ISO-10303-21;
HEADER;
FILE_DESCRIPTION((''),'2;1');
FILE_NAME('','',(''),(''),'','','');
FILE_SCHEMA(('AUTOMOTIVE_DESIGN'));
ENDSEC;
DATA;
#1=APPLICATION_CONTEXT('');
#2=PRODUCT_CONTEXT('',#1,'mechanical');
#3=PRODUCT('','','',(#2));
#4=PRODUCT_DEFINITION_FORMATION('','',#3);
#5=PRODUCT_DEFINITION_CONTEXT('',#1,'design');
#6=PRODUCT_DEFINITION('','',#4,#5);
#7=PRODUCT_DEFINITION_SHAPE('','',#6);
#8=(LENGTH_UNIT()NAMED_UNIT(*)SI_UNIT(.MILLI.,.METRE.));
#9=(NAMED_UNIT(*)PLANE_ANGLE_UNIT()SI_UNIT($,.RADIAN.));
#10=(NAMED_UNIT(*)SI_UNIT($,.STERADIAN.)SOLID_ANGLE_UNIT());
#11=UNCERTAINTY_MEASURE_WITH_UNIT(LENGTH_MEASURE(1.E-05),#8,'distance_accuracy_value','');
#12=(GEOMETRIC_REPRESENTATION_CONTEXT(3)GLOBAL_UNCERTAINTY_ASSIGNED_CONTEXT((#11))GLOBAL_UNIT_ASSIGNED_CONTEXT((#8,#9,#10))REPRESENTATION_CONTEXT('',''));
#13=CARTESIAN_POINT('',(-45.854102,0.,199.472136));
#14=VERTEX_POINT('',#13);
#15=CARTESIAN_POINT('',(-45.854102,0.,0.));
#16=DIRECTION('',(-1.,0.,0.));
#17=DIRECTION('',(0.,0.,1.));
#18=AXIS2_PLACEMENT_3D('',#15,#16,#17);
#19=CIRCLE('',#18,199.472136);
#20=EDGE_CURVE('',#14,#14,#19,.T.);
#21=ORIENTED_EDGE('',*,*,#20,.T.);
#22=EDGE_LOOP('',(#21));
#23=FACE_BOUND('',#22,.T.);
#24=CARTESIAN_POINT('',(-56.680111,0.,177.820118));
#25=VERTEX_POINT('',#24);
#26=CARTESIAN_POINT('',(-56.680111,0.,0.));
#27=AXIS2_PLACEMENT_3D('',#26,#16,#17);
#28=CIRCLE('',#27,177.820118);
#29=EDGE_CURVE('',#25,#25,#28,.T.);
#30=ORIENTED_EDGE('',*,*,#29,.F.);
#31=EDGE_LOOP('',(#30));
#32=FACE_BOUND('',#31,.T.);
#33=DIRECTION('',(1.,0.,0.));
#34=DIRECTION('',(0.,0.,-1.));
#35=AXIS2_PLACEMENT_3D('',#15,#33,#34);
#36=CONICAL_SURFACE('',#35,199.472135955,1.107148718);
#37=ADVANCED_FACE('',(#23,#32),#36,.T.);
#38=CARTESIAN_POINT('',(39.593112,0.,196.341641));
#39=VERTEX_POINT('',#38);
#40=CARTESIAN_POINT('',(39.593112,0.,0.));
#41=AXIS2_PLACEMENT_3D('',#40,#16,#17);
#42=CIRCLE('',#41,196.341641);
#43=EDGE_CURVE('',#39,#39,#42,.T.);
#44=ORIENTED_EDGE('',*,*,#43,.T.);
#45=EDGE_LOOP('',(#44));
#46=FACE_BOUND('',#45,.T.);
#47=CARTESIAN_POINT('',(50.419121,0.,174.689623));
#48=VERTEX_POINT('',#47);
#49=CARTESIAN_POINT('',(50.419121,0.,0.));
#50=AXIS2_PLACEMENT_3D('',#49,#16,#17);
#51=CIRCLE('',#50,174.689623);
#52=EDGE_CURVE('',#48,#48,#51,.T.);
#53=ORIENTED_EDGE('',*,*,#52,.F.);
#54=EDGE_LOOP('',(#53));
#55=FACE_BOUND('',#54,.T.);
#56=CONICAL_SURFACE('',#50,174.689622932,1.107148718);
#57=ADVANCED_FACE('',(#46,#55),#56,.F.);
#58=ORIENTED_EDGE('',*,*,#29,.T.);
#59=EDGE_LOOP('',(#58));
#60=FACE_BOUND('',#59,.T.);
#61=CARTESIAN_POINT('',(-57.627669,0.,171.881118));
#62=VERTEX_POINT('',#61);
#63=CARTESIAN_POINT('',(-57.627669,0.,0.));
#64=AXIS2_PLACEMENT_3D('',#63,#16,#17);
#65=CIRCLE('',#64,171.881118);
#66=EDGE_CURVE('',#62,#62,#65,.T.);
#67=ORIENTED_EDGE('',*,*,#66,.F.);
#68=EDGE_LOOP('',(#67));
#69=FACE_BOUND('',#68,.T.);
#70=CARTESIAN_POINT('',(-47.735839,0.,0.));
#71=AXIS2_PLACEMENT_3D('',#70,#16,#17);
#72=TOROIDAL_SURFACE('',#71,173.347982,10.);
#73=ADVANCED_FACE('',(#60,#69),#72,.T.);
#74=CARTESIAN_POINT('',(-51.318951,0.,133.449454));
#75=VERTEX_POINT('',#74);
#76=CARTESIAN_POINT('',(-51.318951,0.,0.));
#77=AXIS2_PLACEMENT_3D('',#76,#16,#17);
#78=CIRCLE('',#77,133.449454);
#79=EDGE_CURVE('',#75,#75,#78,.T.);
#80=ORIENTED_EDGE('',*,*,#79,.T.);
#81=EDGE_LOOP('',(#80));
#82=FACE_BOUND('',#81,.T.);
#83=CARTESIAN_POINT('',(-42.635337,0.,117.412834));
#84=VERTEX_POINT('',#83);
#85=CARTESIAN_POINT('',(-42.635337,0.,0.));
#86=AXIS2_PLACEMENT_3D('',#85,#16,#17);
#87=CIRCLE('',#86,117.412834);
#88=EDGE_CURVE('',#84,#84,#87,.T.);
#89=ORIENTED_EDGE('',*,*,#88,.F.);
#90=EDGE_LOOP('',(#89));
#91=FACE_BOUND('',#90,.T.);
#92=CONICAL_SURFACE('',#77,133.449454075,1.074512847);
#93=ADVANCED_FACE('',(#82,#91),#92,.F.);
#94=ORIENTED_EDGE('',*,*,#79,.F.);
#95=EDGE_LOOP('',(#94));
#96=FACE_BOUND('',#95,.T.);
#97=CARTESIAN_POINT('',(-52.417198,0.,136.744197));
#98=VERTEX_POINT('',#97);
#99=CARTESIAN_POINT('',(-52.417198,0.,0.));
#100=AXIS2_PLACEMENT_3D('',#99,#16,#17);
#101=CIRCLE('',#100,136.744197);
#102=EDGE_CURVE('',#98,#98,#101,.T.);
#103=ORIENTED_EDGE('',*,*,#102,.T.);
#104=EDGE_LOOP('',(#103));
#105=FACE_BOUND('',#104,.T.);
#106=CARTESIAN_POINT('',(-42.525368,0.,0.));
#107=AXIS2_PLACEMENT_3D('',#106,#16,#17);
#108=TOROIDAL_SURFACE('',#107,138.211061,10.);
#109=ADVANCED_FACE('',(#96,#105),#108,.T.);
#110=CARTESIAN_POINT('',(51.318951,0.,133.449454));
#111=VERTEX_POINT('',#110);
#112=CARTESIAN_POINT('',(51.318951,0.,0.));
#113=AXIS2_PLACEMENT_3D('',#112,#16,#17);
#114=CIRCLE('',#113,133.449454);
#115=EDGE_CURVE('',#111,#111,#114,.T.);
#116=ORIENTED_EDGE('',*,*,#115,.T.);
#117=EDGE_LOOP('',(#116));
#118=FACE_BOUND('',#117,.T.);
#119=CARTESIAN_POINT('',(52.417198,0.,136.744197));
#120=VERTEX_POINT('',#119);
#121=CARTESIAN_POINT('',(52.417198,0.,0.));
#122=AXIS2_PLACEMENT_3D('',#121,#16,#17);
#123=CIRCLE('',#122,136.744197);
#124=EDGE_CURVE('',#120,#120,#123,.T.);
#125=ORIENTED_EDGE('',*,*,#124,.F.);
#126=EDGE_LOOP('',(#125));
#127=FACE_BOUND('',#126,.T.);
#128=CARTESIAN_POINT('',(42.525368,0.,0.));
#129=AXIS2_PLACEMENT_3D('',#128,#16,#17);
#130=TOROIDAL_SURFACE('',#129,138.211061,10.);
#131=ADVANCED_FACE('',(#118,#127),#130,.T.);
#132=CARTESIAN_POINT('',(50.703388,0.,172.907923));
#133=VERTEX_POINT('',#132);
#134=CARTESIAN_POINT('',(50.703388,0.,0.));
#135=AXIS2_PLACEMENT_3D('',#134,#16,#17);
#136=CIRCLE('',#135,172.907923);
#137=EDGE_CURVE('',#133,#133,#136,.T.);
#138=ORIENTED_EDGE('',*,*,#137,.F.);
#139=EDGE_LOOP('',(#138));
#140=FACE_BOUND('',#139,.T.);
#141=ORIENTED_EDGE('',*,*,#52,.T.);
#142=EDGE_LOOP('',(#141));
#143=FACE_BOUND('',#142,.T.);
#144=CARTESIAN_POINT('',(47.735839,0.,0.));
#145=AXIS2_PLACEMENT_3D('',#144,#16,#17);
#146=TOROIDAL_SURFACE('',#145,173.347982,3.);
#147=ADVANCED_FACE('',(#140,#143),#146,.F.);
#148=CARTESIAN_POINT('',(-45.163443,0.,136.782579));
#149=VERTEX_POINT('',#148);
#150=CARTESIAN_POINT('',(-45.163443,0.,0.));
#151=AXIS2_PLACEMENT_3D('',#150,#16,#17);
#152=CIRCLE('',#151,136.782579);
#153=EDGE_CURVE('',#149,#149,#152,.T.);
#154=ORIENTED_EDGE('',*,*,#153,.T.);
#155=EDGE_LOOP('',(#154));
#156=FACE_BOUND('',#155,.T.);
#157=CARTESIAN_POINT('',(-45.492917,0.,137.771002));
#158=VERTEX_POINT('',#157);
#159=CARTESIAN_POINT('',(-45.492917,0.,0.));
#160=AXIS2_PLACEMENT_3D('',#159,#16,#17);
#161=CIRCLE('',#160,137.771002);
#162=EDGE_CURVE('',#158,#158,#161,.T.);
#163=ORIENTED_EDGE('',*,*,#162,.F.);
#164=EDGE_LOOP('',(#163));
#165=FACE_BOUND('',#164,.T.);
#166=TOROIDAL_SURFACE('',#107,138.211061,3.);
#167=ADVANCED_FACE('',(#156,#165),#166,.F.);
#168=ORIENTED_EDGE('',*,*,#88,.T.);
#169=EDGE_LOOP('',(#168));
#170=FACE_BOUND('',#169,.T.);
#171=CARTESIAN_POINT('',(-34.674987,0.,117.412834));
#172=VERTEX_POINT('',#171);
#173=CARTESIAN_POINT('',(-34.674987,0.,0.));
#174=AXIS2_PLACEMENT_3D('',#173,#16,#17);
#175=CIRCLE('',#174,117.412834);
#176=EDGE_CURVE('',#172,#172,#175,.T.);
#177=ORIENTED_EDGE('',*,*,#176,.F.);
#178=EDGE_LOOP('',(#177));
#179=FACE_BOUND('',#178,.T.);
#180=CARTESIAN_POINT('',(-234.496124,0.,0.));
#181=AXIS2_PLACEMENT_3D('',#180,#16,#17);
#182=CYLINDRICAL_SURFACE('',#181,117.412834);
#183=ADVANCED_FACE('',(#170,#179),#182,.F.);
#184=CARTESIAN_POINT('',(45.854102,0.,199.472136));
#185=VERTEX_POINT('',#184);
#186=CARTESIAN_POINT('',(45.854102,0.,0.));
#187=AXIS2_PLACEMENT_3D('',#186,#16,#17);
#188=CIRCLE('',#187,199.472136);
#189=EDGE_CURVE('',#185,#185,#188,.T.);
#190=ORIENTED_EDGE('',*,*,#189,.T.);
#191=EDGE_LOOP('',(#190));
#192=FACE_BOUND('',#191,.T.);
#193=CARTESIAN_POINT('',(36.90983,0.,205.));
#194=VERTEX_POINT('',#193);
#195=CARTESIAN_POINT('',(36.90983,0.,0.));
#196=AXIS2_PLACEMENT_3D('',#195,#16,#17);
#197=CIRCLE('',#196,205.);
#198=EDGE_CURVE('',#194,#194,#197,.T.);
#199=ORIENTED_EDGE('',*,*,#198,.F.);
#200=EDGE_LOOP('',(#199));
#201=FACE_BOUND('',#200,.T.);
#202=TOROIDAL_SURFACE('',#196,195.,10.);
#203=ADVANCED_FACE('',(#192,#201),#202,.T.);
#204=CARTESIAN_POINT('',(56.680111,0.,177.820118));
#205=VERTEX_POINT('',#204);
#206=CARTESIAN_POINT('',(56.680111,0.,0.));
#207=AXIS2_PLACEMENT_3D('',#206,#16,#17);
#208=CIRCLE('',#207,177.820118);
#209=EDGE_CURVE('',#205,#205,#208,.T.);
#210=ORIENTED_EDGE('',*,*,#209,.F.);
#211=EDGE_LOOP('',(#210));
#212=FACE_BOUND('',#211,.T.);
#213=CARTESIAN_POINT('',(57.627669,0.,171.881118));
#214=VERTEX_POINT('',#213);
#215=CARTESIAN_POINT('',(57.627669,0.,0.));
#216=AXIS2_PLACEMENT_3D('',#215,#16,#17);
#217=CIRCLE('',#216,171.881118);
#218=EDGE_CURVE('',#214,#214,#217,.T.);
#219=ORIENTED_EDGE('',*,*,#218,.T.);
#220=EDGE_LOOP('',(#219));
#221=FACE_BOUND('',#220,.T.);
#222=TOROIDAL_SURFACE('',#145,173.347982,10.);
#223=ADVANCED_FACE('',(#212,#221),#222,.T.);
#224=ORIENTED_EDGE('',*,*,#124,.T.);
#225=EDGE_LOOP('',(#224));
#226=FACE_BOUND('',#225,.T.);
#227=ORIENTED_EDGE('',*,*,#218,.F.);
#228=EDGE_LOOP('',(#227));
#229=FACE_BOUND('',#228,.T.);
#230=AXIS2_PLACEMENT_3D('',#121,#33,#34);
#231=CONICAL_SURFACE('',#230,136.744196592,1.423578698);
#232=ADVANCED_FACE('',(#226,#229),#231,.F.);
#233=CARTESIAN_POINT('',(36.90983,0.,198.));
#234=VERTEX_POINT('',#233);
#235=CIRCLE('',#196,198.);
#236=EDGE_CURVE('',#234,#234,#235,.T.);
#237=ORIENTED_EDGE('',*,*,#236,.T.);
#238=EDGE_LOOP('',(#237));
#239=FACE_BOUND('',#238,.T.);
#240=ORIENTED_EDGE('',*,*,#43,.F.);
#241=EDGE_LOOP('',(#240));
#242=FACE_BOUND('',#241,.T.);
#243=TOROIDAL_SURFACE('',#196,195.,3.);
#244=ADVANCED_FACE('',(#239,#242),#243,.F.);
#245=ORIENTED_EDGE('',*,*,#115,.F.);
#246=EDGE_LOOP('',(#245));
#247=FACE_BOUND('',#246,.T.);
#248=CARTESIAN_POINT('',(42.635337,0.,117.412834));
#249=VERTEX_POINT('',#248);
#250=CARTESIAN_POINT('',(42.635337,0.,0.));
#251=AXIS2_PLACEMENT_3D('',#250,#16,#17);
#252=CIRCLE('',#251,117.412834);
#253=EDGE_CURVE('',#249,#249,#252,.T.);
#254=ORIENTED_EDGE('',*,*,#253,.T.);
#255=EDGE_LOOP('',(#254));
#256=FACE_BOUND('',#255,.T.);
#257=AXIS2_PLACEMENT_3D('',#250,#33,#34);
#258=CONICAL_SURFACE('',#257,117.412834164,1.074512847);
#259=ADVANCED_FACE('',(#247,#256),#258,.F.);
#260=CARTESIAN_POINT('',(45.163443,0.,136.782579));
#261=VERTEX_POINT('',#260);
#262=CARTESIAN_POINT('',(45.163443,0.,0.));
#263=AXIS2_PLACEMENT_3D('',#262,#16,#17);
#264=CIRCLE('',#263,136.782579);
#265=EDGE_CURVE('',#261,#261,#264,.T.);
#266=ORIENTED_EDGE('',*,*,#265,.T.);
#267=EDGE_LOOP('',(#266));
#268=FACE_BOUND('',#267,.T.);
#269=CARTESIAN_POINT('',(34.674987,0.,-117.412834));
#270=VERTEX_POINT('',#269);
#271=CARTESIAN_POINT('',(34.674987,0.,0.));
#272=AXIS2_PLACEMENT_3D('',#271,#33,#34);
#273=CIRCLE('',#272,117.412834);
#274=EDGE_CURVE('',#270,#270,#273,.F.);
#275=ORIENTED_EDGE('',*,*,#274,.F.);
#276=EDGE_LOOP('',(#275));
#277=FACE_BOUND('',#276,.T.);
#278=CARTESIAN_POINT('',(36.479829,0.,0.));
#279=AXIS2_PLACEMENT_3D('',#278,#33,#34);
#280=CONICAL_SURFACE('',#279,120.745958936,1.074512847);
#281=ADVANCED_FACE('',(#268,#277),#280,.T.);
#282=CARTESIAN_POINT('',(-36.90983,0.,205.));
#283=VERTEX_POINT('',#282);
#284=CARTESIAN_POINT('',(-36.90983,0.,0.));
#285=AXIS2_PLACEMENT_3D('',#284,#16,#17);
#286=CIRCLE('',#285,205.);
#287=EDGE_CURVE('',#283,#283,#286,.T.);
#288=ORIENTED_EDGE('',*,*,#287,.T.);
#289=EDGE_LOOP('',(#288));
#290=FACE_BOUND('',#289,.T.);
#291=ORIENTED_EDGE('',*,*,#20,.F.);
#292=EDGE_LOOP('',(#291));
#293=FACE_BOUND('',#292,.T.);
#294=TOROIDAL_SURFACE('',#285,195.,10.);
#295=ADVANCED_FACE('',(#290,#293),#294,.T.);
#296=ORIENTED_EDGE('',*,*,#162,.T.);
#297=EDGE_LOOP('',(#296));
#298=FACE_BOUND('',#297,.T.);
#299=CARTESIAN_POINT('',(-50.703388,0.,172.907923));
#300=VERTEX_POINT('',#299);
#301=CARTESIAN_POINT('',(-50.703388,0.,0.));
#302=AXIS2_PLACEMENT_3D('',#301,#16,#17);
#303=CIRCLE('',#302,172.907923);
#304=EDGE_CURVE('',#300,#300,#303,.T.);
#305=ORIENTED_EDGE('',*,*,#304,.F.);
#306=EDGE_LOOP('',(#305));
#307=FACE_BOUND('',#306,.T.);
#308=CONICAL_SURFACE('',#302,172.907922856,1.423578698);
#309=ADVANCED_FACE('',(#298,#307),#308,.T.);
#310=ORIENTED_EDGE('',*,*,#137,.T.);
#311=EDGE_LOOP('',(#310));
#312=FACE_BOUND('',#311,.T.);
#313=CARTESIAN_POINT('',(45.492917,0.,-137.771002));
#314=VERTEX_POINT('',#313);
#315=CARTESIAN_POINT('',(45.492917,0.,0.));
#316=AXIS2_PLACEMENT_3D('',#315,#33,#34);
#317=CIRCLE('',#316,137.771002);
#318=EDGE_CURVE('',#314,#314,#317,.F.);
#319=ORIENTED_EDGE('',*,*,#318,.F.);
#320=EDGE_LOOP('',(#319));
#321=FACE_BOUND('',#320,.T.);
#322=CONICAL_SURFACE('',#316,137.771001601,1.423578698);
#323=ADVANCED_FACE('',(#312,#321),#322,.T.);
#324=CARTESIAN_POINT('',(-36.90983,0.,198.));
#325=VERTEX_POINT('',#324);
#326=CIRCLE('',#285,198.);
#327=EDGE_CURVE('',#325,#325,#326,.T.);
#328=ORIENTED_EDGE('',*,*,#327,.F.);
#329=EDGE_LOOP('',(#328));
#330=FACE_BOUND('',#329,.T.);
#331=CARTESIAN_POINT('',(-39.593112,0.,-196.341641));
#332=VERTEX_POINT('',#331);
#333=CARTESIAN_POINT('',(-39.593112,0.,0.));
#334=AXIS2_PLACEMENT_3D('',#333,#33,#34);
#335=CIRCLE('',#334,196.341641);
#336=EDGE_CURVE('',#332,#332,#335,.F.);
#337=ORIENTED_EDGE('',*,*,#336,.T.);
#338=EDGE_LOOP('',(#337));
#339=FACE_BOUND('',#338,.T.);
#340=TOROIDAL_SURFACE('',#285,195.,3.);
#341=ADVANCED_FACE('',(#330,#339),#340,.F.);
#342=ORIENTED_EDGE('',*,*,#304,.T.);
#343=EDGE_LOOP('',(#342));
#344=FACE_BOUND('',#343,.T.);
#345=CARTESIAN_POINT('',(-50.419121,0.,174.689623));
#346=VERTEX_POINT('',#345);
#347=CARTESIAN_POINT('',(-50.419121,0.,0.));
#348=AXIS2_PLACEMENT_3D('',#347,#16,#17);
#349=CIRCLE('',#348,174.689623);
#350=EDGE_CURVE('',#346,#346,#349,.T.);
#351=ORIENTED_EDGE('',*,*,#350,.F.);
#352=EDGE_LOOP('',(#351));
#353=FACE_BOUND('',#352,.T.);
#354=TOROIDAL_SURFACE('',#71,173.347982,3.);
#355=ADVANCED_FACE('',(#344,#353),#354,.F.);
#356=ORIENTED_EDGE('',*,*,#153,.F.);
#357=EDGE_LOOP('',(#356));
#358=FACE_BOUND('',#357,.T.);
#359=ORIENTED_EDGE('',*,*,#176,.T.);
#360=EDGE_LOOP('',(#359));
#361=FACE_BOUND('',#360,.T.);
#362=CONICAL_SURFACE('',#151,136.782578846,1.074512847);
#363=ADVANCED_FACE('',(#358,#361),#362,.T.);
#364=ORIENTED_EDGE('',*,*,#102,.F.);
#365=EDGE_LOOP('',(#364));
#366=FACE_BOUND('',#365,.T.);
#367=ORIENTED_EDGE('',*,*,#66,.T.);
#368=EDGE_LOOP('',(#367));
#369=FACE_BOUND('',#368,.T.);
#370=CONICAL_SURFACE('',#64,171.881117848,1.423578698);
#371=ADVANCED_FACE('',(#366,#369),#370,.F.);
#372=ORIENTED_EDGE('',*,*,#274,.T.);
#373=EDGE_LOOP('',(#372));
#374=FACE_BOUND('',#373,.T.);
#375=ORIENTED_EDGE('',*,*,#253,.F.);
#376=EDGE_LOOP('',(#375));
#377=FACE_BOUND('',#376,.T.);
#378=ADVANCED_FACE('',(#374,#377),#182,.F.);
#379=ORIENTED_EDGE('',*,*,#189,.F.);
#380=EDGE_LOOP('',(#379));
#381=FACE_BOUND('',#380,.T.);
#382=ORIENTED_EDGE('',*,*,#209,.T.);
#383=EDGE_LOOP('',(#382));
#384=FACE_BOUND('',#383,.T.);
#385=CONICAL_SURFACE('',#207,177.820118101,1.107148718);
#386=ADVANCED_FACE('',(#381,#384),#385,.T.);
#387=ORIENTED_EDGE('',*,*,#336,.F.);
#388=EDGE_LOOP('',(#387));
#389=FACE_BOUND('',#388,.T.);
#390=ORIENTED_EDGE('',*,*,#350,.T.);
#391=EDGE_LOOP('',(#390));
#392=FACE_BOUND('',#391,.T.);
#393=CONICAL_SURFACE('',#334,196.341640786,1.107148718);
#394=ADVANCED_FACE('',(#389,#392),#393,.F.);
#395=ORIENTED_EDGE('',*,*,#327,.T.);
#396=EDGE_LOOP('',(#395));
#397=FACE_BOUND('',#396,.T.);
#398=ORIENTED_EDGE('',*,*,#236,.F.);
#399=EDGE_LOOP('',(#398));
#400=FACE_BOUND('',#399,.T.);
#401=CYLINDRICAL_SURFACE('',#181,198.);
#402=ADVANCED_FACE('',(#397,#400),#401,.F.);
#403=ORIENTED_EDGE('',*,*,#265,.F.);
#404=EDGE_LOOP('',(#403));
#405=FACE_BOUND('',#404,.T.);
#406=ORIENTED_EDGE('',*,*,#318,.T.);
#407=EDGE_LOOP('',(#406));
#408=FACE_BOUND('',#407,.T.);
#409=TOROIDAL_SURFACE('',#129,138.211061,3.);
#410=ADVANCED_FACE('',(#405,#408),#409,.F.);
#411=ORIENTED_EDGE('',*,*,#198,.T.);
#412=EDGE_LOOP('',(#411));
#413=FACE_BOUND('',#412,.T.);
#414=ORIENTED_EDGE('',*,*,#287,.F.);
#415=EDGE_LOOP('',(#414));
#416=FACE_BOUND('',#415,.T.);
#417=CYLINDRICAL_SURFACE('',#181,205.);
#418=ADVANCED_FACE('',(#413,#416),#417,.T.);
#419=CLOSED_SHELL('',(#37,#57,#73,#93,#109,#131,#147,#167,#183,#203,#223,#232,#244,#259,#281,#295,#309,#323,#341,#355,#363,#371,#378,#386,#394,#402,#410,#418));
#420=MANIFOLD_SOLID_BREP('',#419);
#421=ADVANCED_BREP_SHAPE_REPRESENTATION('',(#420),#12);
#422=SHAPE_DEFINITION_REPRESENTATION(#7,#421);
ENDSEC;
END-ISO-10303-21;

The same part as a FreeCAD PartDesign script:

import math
import FreeCAD as App
import Part
import Sketcher

V = App.Vector


def faces_at(feature, points):
    """Names of the faces that lie closest to the given points."""
    faces = feature.Shape.Faces
    near = lambda p: min(range(len(faces)), key=lambda i: faces[i].distToShape(Part.Vertex(*p))[0])
    return sorted({f"Face{near(p) + 1}" for p in points})

doc = App.newDocument("Part")
body = doc.addObject("PartDesign::Body", "Body")

# Sketch on XZ plane
sketch1 = body.newObject("Sketcher::SketchObject", "Sketch")
sketch1.AttachmentSupport = (doc.getObject("XZ_Plane"), [""])
sketch1.MapMode = "FlatFace"
sketch1.addGeometry(Part.LineSegment(V(36.9, -205, 0), V(-36.9, -205, 0)), False)
sketch1.addGeometry(Part.ArcOfCircle(Part.Circle(V(-36.9, -195, 0), V(0, 0, 1), 10), math.radians(-153), math.radians(-90)), False)
sketch1.addGeometry(Part.LineSegment(V(-45.9, -199.5, 0), V(-56.7, -177.8, 0)), False)
sketch1.addGeometry(Part.ArcOfCircle(Part.Circle(V(-47.7, -173.3, 0), V(0, 0, 1), 10), math.radians(172), math.radians(207)), False)
sketch1.addGeometry(Part.LineSegment(V(-57.6, -171.9, 0), V(-52.4, -136.7, 0)), False)
sketch1.addGeometry(Part.ArcOfCircle(Part.Circle(V(-42.5, -138.2, 0), V(0, 0, 1), 10), math.radians(152), math.radians(172)), False)
sketch1.addGeometry(Part.LineSegment(V(-51.3, -133.4, 0), V(-42.6, -117.4, 0)), False)
sketch1.addGeometry(Part.LineSegment(V(-42.6, -117.4, 0), V(42.6, -117.4, 0)), False)
sketch1.addGeometry(Part.LineSegment(V(42.6, -117.4, 0), V(51.3, -133.4, 0)), False)
sketch1.addGeometry(Part.ArcOfCircle(Part.Circle(V(42.5, -138.2, 0), V(0, 0, 1), 10), math.radians(8), math.radians(28)), False)
sketch1.addGeometry(Part.LineSegment(V(52.4, -136.7, 0), V(57.6, -171.9, 0)), False)
sketch1.addGeometry(Part.ArcOfCircle(Part.Circle(V(47.7, -173.3, 0), V(0, 0, 1), 10), math.radians(-27), math.radians(8)), False)
sketch1.addGeometry(Part.LineSegment(V(56.7, -177.8, 0), V(45.9, -199.5, 0)), False)
sketch1.addGeometry(Part.ArcOfCircle(Part.Circle(V(36.9, -195, 0), V(0, 0, 1), 10), math.radians(-90), math.radians(-27)), False)
sketch1.addConstraint(Sketcher.Constraint("Tangent", 0, 2, 1, 2))
sketch1.addConstraint(Sketcher.Constraint("Tangent", 1, 1, 2, 1))
sketch1.addConstraint(Sketcher.Constraint("Tangent", 2, 2, 3, 2))
sketch1.addConstraint(Sketcher.Constraint("Tangent", 3, 1, 4, 1))
sketch1.addConstraint(Sketcher.Constraint("Tangent", 4, 2, 5, 2))
sketch1.addConstraint(Sketcher.Constraint("Tangent", 5, 1, 6, 1))
sketch1.addConstraint(Sketcher.Constraint("Coincident", 6, 2, 7, 1))
sketch1.addConstraint(Sketcher.Constraint("Coincident", 7, 2, 8, 1))
sketch1.addConstraint(Sketcher.Constraint("Tangent", 8, 2, 9, 2))
sketch1.addConstraint(Sketcher.Constraint("Tangent", 9, 1, 10, 1))
sketch1.addConstraint(Sketcher.Constraint("Tangent", 10, 2, 11, 2))
sketch1.addConstraint(Sketcher.Constraint("Tangent", 11, 1, 12, 1))
sketch1.addConstraint(Sketcher.Constraint("Tangent", 12, 2, 13, 2))
sketch1.addConstraint(Sketcher.Constraint("Tangent", 13, 1, 0, 1))
sketch1.addConstraint(Sketcher.Constraint("Horizontal", 0))
sketch1.addConstraint(Sketcher.Constraint("Horizontal", 7))
sketch1.addConstraint(Sketcher.Constraint("Equal", 1, 3))
sketch1.addConstraint(Sketcher.Constraint("Equal", 3, 5))
sketch1.addConstraint(Sketcher.Constraint("Equal", 5, 9))
sketch1.addConstraint(Sketcher.Constraint("Equal", 9, 11))
sketch1.addConstraint(Sketcher.Constraint("Equal", 11, 13))
sketch1.addConstraint(Sketcher.Constraint("Symmetric", 5, 3, 9, 3, -2))
sketch1.addConstraint(Sketcher.Constraint("Symmetric", 3, 3, 11, 3, -2))
sketch1.addConstraint(Sketcher.Constraint("Horizontal", 5, 1, 8, 2))
sketch1.addConstraint(Sketcher.Constraint("Horizontal", 2, 2, 11, 1))
sketch1.addConstraint(Sketcher.Constraint("Radius", 1, 10.0))
sketch1.addConstraint(Sketcher.Constraint("DistanceY", 1, 3, -1, 1, 195.0))
sketch1.addConstraint(Sketcher.Constraint("DistanceY", 2, 2, 3, 1, 5.939))
sketch1.addConstraint(Sketcher.Constraint("DistanceX", 0, 2, 0, 1, 73.81966))
sketch1.addConstraint(Sketcher.Constraint("DistanceX", 1, 1, -1, 1, 45.854102))
sketch1.addConstraint(Sketcher.Constraint("DistanceX", 4, 2, -1, 1, 52.417198))
sketch1.addConstraint(Sketcher.Constraint("DistanceX", 3, 1, 5, 3, 15.102301))
sketch1.addConstraint(Sketcher.Constraint("DistanceX", 3, 3, 6, 2, 5.100502))
sketch1.addConstraint(Sketcher.Constraint("Distance", 6, 18.23673))
revolution = body.newObject("PartDesign::Revolution", "Revolution")
revolution.Profile = sketch1
revolution.ReferenceAxis = (sketch1, ["H_Axis"])
revolution.Angle = 360
doc.recompute()

thickness = body.newObject("PartDesign::Thickness", "Thickness")
thickness.Base = (revolution, faces_at(revolution, [(0, 0, -117.413)]))
thickness.Value = 7
thickness.Reversed = True
thickness.Join = "Intersection"

doc.recompute()
